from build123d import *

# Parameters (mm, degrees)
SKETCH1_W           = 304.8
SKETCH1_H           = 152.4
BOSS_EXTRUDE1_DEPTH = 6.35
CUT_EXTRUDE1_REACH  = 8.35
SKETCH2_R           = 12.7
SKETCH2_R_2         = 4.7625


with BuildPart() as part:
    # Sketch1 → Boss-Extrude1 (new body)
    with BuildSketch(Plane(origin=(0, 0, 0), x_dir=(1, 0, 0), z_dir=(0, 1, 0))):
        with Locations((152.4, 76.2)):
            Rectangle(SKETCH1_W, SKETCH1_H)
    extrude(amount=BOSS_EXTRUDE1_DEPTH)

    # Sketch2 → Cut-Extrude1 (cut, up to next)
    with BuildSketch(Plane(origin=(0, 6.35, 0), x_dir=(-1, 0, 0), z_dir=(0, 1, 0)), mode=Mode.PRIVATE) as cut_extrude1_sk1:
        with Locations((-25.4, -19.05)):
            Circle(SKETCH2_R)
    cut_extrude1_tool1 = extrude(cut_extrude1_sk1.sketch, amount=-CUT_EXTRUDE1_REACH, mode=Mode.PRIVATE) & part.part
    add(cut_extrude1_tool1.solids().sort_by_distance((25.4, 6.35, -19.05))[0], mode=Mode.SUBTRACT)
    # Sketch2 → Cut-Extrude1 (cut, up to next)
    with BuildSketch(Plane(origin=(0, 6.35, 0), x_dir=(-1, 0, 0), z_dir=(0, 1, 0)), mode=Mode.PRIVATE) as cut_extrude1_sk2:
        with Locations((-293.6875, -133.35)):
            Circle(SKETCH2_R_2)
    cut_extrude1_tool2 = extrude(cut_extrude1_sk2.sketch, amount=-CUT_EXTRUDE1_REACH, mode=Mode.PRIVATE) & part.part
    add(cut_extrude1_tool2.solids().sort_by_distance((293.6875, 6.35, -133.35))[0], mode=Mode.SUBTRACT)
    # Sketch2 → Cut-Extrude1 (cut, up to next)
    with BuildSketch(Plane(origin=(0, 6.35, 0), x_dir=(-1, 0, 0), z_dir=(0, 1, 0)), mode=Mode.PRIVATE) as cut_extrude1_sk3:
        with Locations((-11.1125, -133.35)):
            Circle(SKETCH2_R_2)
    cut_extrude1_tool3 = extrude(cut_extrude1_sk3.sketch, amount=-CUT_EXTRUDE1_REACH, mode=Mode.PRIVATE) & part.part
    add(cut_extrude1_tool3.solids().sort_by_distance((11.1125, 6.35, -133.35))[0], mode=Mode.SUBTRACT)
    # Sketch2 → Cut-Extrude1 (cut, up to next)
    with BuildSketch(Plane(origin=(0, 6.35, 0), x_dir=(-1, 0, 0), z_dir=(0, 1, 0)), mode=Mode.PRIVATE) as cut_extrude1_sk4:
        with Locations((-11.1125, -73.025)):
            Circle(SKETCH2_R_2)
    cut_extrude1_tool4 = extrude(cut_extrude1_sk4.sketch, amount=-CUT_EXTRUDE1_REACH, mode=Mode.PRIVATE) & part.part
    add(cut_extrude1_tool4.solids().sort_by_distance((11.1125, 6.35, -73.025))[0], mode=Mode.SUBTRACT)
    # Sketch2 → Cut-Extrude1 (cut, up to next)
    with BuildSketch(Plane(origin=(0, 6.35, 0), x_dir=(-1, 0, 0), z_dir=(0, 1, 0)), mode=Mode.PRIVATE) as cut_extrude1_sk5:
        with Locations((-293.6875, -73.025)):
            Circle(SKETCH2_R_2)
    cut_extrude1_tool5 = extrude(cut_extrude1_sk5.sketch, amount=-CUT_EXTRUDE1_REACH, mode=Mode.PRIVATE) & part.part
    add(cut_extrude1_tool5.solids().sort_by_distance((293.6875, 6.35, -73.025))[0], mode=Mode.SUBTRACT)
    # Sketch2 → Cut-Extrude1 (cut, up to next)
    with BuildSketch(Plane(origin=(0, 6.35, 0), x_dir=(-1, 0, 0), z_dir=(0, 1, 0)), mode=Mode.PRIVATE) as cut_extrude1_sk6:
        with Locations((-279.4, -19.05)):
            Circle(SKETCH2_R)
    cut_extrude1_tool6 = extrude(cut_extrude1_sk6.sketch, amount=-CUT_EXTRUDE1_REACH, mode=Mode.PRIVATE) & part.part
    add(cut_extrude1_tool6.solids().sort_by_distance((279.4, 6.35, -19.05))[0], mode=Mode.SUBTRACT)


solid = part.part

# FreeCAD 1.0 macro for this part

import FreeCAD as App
import Part
import Sketcher
from FreeCAD import Vector
Q = App.Units.Quantity


def add_polygon(sketch, points):
    """Adds a closed chain of lines whose ends are joined by coincident constraints."""
    first, n = sketch.GeometryCount, len(points)
    for a, b in zip(points, points[1:] + points[:1]):
        sketch.addGeometry(Part.LineSegment(App.Vector(*a, 0), App.Vector(*b, 0)), False)
    for i in range(n):
        sketch.addConstraint(Sketcher.Constraint("Coincident", first + i, 2, first + (i + 1) % n, 1))

doc = App.newDocument("Part")
body = doc.addObject("PartDesign::Body", "Body")

sketch1 = body.newObject("Sketcher::SketchObject", "Sketch")
sketch1.AttachmentSupport = (doc.getObject("XZ_Plane"), [""])
sketch1.MapMode = "FlatFace"
add_polygon(sketch1, [(0, -152), (0, 0), (305, 0), (305, -152)])
sketch1.addConstraint(Sketcher.Constraint("Vertical", 0))
sketch1.addConstraint(Sketcher.Constraint("Horizontal", 1))
sketch1.addConstraint(Sketcher.Constraint("Vertical", 2))
sketch1.addConstraint(Sketcher.Constraint("Horizontal", 3))
sketch1.addConstraint(Sketcher.Constraint("Coincident", 0, 2, -1, 1))
sketch1.addConstraint(Sketcher.Constraint("DistanceX", 1, 1, 1, 2, Q("12 in")))
sketch1.addConstraint(Sketcher.Constraint("DistanceY", 0, 1, 0, 2, Q("6 in")))
pad1 = body.newObject("PartDesign::Pad", "Pad")
pad1.Profile = sketch1
pad1.Length = Q("0.25 in")
pad1.Reversed = True

sketch2 = body.newObject("Sketcher::SketchObject", "Sketch001")
sketch2.AttachmentSupport = (doc.getObject("XZ_Plane"), [""])
sketch2.MapMode = "FlatFace"
sketch2.AttachmentOffset = App.Placement(Vector(0, 0, -0.25 * 25.4), App.Rotation())
sketch2.addGeometry(Part.Circle(Vector(25, -19, 0), Vector(0, 0, 1), 13), False)
sketch2.addConstraint(Sketcher.Constraint("Diameter", 0, Q("1 in")))
sketch2.addConstraint(Sketcher.Constraint("DistanceX", -1, 1, 0, 3, Q("1 in")))
sketch2.addConstraint(Sketcher.Constraint("DistanceY", 0, 3, -1, 1, Q("0.75 in")))
pocket1 = body.newObject("PartDesign::Pocket", "Pocket")
pocket1.Profile = sketch2
pocket1.Type = "UpToFirst"
pocket1.Reversed = True

sketch3 = body.newObject("Sketcher::SketchObject", "Sketch002")
sketch3.AttachmentSupport = (doc.getObject("XZ_Plane"), [""])
sketch3.MapMode = "FlatFace"
sketch3.AttachmentOffset = App.Placement(Vector(0, 0, -0.25 * 25.4), App.Rotation())
sketch3.addGeometry(Part.Circle(Vector(293.7, -133.3, 0), Vector(0, 0, 1), 4.8), False)
sketch3.addConstraint(Sketcher.Constraint("Diameter", 0, Q("0.375 in")))
sketch3.addConstraint(Sketcher.Constraint("DistanceY", 0, 3, -1, 1, Q("5.25 in")))
sketch3.addConstraint(Sketcher.Constraint("DistanceX", -1, 1, 0, 3, Q("11.5625 in")))
pocket2 = body.newObject("PartDesign::Pocket", "Pocket001")
pocket2.Profile = sketch3
pocket2.Type = "UpToFirst"
pocket2.Reversed = True

sketch4 = body.newObject("Sketcher::SketchObject", "Sketch003")
sketch4.AttachmentSupport = (doc.getObject("XZ_Plane"), [""])
sketch4.MapMode = "FlatFace"
sketch4.AttachmentOffset = App.Placement(Vector(0, 0, -0.25 * 25.4), App.Rotation())
sketch4.addGeometry(Part.Circle(Vector(11.1, -133.3, 0), Vector(0, 0, 1), 4.8), False)
sketch4.addConstraint(Sketcher.Constraint("Diameter", 0, Q("0.375 in")))
sketch4.addConstraint(Sketcher.Constraint("DistanceY", 0, 3, -1, 1, Q("5.25 in")))
sketch4.addConstraint(Sketcher.Constraint("DistanceX", -1, 1, 0, 3, Q("0.4375 in")))
pocket3 = body.newObject("PartDesign::Pocket", "Pocket002")
pocket3.Profile = sketch4
pocket3.Type = "UpToFirst"
pocket3.Reversed = True

sketch5 = body.newObject("Sketcher::SketchObject", "Sketch004")
sketch5.AttachmentSupport = (doc.getObject("XZ_Plane"), [""])
sketch5.MapMode = "FlatFace"
sketch5.AttachmentOffset = App.Placement(Vector(0, 0, -0.25 * 25.4), App.Rotation())
sketch5.addGeometry(Part.Circle(Vector(11.1, -73, 0), Vector(0, 0, 1), 4.8), False)
sketch5.addConstraint(Sketcher.Constraint("Diameter", 0, Q("0.375 in")))
sketch5.addConstraint(Sketcher.Constraint("DistanceX", -1, 1, 0, 3, Q("0.4375 in")))
sketch5.addConstraint(Sketcher.Constraint("DistanceY", 0, 3, -1, 1, Q("2.875 in")))
pocket4 = body.newObject("PartDesign::Pocket", "Pocket003")
pocket4.Profile = sketch5
pocket4.Type = "UpToFirst"
pocket4.Reversed = True

sketch6 = body.newObject("Sketcher::SketchObject", "Sketch005")
sketch6.AttachmentSupport = (doc.getObject("XZ_Plane"), [""])
sketch6.MapMode = "FlatFace"
sketch6.AttachmentOffset = App.Placement(Vector(0, 0, -0.25 * 25.4), App.Rotation())
sketch6.addGeometry(Part.Circle(Vector(293.7, -73, 0), Vector(0, 0, 1), 4.8), False)
sketch6.addConstraint(Sketcher.Constraint("Diameter", 0, Q("0.375 in")))
sketch6.addConstraint(Sketcher.Constraint("DistanceX", -1, 1, 0, 3, Q("11.5625 in")))
sketch6.addConstraint(Sketcher.Constraint("DistanceY", 0, 3, -1, 1, Q("2.875 in")))
pocket5 = body.newObject("PartDesign::Pocket", "Pocket004")
pocket5.Profile = sketch6
pocket5.Type = "UpToFirst"
pocket5.Reversed = True

sketch7 = body.newObject("Sketcher::SketchObject", "Sketch006")
sketch7.AttachmentSupport = (doc.getObject("XZ_Plane"), [""])
sketch7.MapMode = "FlatFace"
sketch7.AttachmentOffset = App.Placement(Vector(0, 0, -0.25 * 25.4), App.Rotation())
sketch7.addGeometry(Part.Circle(Vector(279, -19, 0), Vector(0, 0, 1), 13), False)
sketch7.addConstraint(Sketcher.Constraint("Diameter", 0, Q("1 in")))
sketch7.addConstraint(Sketcher.Constraint("DistanceX", -1, 1, 0, 3, Q("11 in")))
sketch7.addConstraint(Sketcher.Constraint("DistanceY", 0, 3, -1, 1, Q("0.75 in")))
pocket6 = body.newObject("PartDesign::Pocket", "Pocket005")
pocket6.Profile = sketch7
pocket6.Type = "UpToFirst"
pocket6.Reversed = True

doc.recompute()
